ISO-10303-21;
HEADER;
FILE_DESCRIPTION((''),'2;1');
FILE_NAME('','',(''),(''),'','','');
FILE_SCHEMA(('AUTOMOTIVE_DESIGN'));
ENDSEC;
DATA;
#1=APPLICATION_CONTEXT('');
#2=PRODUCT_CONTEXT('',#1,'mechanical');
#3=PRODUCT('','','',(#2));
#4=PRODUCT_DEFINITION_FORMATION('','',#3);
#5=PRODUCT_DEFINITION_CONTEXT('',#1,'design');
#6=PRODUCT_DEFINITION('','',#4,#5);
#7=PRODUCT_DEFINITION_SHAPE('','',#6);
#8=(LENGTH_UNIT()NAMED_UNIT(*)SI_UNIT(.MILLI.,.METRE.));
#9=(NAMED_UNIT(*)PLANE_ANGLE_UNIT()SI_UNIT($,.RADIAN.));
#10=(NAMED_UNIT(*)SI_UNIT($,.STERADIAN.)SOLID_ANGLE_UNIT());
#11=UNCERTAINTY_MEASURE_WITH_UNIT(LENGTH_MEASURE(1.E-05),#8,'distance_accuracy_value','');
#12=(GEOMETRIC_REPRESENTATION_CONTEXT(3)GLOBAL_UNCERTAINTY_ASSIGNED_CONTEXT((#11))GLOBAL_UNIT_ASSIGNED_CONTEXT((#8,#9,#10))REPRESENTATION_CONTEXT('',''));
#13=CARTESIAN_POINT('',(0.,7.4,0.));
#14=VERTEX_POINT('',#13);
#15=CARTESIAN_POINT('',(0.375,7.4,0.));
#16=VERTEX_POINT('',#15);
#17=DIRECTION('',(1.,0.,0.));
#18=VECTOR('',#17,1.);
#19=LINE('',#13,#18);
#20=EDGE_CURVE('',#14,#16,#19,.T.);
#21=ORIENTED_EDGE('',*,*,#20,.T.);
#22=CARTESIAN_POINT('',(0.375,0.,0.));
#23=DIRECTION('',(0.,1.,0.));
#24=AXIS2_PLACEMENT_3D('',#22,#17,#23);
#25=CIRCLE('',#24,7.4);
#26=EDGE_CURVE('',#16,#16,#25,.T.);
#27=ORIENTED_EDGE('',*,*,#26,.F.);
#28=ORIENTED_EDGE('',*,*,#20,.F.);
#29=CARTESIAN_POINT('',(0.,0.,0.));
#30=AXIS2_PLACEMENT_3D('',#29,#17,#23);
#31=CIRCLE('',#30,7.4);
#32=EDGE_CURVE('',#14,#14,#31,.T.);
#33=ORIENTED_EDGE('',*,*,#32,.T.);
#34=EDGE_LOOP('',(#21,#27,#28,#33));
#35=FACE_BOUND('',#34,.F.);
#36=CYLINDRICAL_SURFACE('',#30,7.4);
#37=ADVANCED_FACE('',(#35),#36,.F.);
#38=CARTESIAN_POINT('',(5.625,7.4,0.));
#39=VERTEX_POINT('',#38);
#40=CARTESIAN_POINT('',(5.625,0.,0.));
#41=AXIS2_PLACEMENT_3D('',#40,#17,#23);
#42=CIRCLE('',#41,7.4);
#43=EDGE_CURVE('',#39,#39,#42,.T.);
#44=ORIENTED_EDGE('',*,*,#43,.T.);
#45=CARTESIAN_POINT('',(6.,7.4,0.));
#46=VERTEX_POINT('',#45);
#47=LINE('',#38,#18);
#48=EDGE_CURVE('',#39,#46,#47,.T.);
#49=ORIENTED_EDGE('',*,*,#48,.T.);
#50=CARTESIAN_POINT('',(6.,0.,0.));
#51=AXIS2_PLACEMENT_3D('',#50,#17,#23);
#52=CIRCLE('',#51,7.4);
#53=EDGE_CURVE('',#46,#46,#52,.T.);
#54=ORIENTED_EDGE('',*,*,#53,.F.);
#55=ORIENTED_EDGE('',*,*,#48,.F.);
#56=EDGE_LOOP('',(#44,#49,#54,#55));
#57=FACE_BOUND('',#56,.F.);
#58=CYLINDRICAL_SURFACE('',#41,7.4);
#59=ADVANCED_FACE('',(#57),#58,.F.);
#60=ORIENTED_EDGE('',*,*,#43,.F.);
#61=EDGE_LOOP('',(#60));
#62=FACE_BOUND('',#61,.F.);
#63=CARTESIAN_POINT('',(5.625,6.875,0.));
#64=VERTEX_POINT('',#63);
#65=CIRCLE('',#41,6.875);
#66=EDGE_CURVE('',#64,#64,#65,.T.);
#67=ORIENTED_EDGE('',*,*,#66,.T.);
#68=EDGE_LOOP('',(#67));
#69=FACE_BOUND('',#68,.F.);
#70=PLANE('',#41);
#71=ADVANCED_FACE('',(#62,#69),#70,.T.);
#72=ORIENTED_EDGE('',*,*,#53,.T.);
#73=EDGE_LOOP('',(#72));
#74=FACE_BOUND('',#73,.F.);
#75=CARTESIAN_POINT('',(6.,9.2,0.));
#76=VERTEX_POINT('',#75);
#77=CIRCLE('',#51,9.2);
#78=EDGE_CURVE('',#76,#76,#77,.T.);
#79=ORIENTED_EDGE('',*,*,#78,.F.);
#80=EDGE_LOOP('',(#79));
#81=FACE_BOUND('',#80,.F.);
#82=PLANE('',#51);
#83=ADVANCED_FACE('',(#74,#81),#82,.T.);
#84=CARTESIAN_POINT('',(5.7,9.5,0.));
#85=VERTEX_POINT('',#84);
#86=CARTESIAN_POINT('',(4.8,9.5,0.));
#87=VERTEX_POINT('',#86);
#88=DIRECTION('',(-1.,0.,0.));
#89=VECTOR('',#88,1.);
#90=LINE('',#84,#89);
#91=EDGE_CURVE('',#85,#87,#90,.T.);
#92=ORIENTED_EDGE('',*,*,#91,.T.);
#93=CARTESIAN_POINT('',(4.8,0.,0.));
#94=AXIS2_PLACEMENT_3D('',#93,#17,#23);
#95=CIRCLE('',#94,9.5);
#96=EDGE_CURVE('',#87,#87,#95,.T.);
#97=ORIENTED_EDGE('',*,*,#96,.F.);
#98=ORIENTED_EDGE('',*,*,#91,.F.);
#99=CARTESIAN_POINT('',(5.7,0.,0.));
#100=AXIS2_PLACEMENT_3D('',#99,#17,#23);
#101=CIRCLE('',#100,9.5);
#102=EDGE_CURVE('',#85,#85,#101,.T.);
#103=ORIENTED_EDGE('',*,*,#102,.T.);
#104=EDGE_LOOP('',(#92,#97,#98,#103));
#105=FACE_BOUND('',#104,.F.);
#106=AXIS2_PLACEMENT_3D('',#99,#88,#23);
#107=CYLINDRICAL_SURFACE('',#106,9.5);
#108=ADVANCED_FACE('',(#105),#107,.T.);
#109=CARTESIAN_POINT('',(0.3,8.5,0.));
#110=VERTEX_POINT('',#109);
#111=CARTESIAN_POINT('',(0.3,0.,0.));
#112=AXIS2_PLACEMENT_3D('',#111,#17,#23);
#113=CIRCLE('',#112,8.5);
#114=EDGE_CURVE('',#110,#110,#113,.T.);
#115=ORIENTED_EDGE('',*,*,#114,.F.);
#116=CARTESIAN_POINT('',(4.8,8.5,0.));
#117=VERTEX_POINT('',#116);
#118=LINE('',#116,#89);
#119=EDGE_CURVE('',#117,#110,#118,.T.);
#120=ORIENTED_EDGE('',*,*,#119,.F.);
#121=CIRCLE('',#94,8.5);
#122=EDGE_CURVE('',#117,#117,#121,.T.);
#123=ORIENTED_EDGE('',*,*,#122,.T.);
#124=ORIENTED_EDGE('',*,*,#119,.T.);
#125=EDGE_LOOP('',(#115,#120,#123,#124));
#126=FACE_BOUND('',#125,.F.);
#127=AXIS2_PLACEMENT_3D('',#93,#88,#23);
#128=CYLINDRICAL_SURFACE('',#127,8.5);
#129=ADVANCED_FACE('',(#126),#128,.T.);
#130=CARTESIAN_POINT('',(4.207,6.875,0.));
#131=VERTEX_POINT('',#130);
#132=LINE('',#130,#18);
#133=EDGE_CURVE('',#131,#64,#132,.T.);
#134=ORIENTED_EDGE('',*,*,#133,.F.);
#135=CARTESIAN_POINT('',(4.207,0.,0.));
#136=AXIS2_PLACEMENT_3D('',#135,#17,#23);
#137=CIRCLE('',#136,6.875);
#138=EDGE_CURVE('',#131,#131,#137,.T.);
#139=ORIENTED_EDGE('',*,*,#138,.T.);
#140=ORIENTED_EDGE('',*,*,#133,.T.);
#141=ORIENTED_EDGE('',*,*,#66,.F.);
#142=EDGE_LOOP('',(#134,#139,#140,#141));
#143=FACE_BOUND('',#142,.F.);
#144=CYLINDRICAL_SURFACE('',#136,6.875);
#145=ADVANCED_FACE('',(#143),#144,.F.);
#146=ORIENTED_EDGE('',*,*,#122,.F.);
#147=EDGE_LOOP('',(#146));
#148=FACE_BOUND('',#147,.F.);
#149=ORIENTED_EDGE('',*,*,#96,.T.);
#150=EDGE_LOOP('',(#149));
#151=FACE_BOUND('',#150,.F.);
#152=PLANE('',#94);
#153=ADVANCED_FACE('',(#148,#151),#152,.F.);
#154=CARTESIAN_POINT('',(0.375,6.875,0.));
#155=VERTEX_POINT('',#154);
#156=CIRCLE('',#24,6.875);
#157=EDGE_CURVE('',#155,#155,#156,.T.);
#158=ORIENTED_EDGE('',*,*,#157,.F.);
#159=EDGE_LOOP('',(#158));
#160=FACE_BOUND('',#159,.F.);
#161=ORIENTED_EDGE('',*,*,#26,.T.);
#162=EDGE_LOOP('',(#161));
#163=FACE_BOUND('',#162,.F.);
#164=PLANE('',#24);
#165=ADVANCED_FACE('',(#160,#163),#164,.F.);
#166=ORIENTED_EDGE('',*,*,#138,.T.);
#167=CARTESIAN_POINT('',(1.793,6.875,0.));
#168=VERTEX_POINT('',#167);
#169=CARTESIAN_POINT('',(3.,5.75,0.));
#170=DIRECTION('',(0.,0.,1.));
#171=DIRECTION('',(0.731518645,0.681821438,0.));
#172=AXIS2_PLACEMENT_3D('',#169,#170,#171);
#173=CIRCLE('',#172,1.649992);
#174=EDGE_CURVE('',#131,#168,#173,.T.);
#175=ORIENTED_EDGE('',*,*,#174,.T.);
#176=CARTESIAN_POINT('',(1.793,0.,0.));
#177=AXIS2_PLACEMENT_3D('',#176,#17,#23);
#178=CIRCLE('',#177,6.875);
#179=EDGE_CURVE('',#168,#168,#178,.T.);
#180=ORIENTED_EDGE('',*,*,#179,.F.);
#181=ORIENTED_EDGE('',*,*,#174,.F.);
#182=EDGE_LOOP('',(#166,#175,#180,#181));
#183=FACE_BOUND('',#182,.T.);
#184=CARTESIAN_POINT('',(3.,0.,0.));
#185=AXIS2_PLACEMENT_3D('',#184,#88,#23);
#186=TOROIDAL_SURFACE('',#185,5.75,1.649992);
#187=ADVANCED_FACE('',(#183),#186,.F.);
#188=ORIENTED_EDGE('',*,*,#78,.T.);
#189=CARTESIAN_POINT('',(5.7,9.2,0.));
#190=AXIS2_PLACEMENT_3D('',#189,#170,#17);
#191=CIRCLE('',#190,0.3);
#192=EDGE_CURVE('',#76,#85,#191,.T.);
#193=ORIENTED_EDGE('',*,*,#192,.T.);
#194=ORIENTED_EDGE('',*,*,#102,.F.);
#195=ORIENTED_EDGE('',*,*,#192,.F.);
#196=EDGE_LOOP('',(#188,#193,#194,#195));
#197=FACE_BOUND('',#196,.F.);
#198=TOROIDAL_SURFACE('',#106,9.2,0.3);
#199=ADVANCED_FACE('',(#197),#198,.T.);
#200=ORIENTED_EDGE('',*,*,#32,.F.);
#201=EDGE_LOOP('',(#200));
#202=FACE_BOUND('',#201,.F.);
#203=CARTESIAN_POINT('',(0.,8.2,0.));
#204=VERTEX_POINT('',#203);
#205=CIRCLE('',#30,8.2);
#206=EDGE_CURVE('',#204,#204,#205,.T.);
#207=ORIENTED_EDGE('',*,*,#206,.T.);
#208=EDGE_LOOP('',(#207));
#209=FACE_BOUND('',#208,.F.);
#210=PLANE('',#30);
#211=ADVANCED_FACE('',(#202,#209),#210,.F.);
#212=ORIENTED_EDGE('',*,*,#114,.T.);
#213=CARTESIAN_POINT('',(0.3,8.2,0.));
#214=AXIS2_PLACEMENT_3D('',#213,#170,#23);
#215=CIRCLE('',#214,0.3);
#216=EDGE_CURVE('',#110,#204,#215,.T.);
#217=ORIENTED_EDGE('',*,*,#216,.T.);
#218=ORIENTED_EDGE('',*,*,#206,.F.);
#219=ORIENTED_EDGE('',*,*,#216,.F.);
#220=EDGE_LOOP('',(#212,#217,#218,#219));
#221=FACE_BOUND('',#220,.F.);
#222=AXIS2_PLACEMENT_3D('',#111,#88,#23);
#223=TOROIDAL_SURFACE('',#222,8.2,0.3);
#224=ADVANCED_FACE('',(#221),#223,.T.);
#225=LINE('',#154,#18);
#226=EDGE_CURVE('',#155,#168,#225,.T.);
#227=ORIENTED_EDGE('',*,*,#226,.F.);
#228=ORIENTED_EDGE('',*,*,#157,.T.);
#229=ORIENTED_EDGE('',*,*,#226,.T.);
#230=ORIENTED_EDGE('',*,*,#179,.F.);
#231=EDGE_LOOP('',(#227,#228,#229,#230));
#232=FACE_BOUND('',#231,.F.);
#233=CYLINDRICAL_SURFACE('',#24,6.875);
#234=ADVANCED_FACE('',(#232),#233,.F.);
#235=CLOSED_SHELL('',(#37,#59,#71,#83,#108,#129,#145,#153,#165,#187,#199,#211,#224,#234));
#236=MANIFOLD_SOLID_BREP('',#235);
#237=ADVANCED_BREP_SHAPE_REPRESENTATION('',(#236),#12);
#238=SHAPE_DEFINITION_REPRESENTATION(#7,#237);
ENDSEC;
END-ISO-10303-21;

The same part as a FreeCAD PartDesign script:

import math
import FreeCAD as App
import Part
import Sketcher
from FreeCAD import Vector
Q = App.Units.Quantity

doc = App.newDocument("Part")
body = doc.addObject("PartDesign::Body", "Body")

# Sketch on XY plane
sketch1 = doc.addObject("Sketcher::SketchObject", "Sketch")
body.addObject(sketch1)
sketch1.AttachmentSupport = (doc.XY_Plane, [""])
sketch1.MapMode = "FlatFace"
sketch1.addGeometry([
    Part.LineSegment(Vector(0, 8.2, 0), Vector(0, 7.4, 0)),  # 0
    Part.LineSegment(Vector(0, 7.4, 0), Vector(0.375, 7.4, 0)),  # 1
    Part.LineSegment(Vector(0.375, 7.4, 0), Vector(0.375, 6.875, 0)),  # 2
    Part.LineSegment(Vector(0.375, 6.875, 0), Vector(1.793, 6.875, 0)),  # 3
    Part.ArcOfCircle(Part.Circle(Vector(3, 5.75, 0), Vector(0, 0, 1), 1.649992), math.radians(42.986141), math.radians(137.013859)),  # 4
    Part.LineSegment(Vector(4.207, 6.875, 0), Vector(5.625, 6.875, 0)),  # 5
    Part.LineSegment(Vector(5.625, 6.875, 0), Vector(5.625, 7.4, 0)),  # 6
    Part.LineSegment(Vector(5.625, 7.4, 0), Vector(6, 7.4, 0)),  # 7
    Part.LineSegment(Vector(6, 7.4, 0), Vector(6, 9.2, 0)),  # 8
    Part.ArcOfCircle(Part.Circle(Vector(5.7, 9.2, 0), Vector(0, 0, 1), 0.3), math.radians(0), math.radians(90)),  # 9
    Part.LineSegment(Vector(5.7, 9.5, 0), Vector(4.8, 9.5, 0)),  # 10
    Part.LineSegment(Vector(4.8, 9.5, 0), Vector(4.8, 8.5, 0)),  # 11
    Part.LineSegment(Vector(4.8, 8.5, 0), Vector(0.3, 8.5, 0)),  # 12
    Part.ArcOfCircle(Part.Circle(Vector(0.3, 8.2, 0), Vector(0, 0, 1), 0.3), math.radians(90), math.radians(180)),  # 13
], False)
sketch1.addConstraint([
    Sketcher.Constraint("Coincident", 0, 2, 1, 1),
    Sketcher.Constraint("Coincident", 1, 2, 2, 1),
    Sketcher.Constraint("Coincident", 2, 2, 3, 1),
    Sketcher.Constraint("Coincident", 3, 2, 4, 2),
    Sketcher.Constraint("Coincident", 4, 1, 5, 1),
    Sketcher.Constraint("Coincident", 5, 2, 6, 1),
    Sketcher.Constraint("Coincident", 6, 2, 7, 1),
    Sketcher.Constraint("Coincident", 7, 2, 8, 1),
    Sketcher.Constraint("Tangent", 8, 2, 9, 1),
    Sketcher.Constraint("Tangent", 9, 2, 10, 1),
    Sketcher.Constraint("Coincident", 10, 2, 11, 1),
    Sketcher.Constraint("Coincident", 11, 2, 12, 1),
    Sketcher.Constraint("Tangent", 12, 2, 13, 1),
    Sketcher.Constraint("Tangent", 13, 2, 0, 1),
    Sketcher.Constraint("Vertical", 0),
    Sketcher.Constraint("Horizontal", 1),
    Sketcher.Constraint("Vertical", 2),
    Sketcher.Constraint("Horizontal", 3),
    Sketcher.Constraint("Horizontal", 5),
    Sketcher.Constraint("Vertical", 6),
    Sketcher.Constraint("Horizontal", 7),
    Sketcher.Constraint("Vertical", 8),
    Sketcher.Constraint("Horizontal", 10),
    Sketcher.Constraint("Vertical", 11),
    Sketcher.Constraint("Horizontal", 12),
    Sketcher.Constraint("Equal", 9, 13),
    Sketcher.Constraint("PointOnObject", 0, 2, -2),
    Sketcher.Constraint("Horizontal", 3, 2, 4, 1),
    Sketcher.Constraint("Horizontal", 1, 2, 6, 2),
    Sketcher.Constraint("Equal", 3, 5),
    Sketcher.Constraint("Equal", 1, 7),
    Sketcher.Constraint("Radius", 9, Q("0.3 mm")),
    Sketcher.Constraint("DistanceY", 11, 2, 11, 1, Q("1 mm")),
    Sketcher.Constraint("Radius", 4, Q("1.65 mm")),
    Sketcher.Constraint("DistanceX", 10, 2, 10, 1, Q("0.9 mm")),
    Sketcher.Constraint("DistanceX", 12, 2, 12, 1, Q("4.5 mm")),
    Sketcher.Constraint("DistanceY", 0, 2, 0, 1, Q("0.8 mm")),
    Sketcher.Constraint("DistanceY", -1, 1, 9, 3, Q("9.2 mm")),
    Sketcher.Constraint("DistanceX", 1, 1, 1, 2, Q("0.375 mm")),
    Sketcher.Constraint("DistanceX", 3, 1, 3, 2, Q("1.418 mm")),
    Sketcher.Constraint("DistanceY", 2, 2, 2, 1, Q("0.525 mm")),
])
revolution = doc.addObject("PartDesign::Revolution", "Revolution")
body.addObject(revolution)
revolution.Profile = sketch1
revolution.ReferenceAxis = (sketch1, ["H_Axis"])
revolution.Angle = 360

doc.recompute()
